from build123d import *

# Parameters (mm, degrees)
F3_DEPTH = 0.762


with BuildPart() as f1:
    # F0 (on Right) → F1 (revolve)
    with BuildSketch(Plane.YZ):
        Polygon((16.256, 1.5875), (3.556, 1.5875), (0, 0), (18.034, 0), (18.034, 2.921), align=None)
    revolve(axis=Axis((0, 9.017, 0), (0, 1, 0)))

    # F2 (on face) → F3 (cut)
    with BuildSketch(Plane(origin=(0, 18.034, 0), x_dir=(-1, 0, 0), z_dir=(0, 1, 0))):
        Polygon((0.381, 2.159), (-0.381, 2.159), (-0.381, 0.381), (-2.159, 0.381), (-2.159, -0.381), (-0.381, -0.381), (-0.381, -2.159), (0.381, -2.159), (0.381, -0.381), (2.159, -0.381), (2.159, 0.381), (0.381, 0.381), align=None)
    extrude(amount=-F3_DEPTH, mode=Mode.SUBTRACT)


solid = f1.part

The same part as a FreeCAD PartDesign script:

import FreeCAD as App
import Part
import Sketcher
Q = App.Units.Quantity


def add_polygon(sketch, points):
    """Adds a closed chain of lines whose ends are joined by coincident constraints."""
    first, n = sketch.GeometryCount, len(points)
    for a, b in zip(points, points[1:] + points[:1]):
        sketch.addGeometry(Part.LineSegment(App.Vector(*a, 0), App.Vector(*b, 0)), False)
    for i in range(n):
        sketch.addConstraint(Sketcher.Constraint("Coincident", first + i, 2, first + (i + 1) % n, 1))

doc = App.newDocument("Part")
body = doc.addObject("PartDesign::Body", "Body")

sketch1 = body.newObject("Sketcher::SketchObject", "Sketch")
sketch1.AttachmentSupport = (doc.getObject("YZ_Plane"), [""])
sketch1.MapMode = "FlatFace"
add_polygon(sketch1, [(16.3, 1.6), (3.6, 1.6), (0, 0), (18, 0), (18, 2.9)])
sketch1.addConstraint([
    Sketcher.Constraint("Horizontal", 0),
    Sketcher.Constraint("Horizontal", 2),
    Sketcher.Constraint("Vertical", 3),
    Sketcher.Constraint("Coincident", 1, 2, -1, 1),
    Sketcher.Constraint("DistanceX", 0, 2, 0, 1, Q("0.5 in")),
    Sketcher.Constraint("DistanceX", 2, 1, 2, 2, Q("0.71 in")),
    Sketcher.Constraint("DistanceY", 3, 1, 3, 2, Q("0.115 in")),
    Sketcher.Constraint("DistanceX", -1, 1, 0, 2, Q("0.14 in")),
    Sketcher.Constraint("DistanceY", -1, 1, 0, 2, Q("0.0625 in")),
])
revolution = body.newObject("PartDesign::Revolution", "Revolution")
revolution.Profile = sketch1
revolution.ReferenceAxis = (sketch1, ["H_Axis"])
revolution.Angle = 360

sketch2 = body.newObject("Sketcher::SketchObject", "Sketch001")
sketch2.AttachmentSupport = (doc.getObject("XZ_Plane"), [""])
sketch2.MapMode = "FlatFace"
sketch2.AttachmentOffset = App.Placement(App.Vector(0, 0, -0.71 * 25.4), App.Rotation())
add_polygon(sketch2, [(-0.4, 2.2), (0.4, 2.2), (0.4, 0.4), (2.2, 0.4), (2.2, -0.4), (0.4, -0.4), (0.4, -2.2), (-0.4, -2.2), (-0.4, -0.4), (-2.2, -0.4), (-2.2, 0.4), (-0.4, 0.4)])
sketch2.addConstraint([
    Sketcher.Constraint("Horizontal", 0),
    Sketcher.Constraint("Vertical", 1),
    Sketcher.Constraint("Horizontal", 2),
    Sketcher.Constraint("Vertical", 3),
    Sketcher.Constraint("Horizontal", 4),
    Sketcher.Constraint("Vertical", 5),
    Sketcher.Constraint("Horizontal", 6),
    Sketcher.Constraint("Vertical", 7),
    Sketcher.Constraint("Horizontal", 8),
    Sketcher.Constraint("Vertical", 9),
    Sketcher.Constraint("Horizontal", 10),
    Sketcher.Constraint("Vertical", 11),
    Sketcher.Constraint("Symmetric", 0, 2, 6, 2, -1, 1),
    Sketcher.Constraint("Symmetric", 2, 2, 8, 2, -1, 1),
    Sketcher.Constraint("Symmetric", 4, 2, 10, 2, -1, 1),
    Sketcher.Constraint("Symmetric", 4, 2, 7, 2, -2),
    Sketcher.Constraint("Equal", 10, 1),
    Sketcher.Constraint("Equal", 6, 3),
    Sketcher.Constraint("DistanceX", 0, 1, 0, 2, Q("0.03 in")),
    Sketcher.Constraint("DistanceX", 2, 1, 2, 2, Q("0.07 in")),
])
pocket1 = body.newObject("PartDesign::Pocket", "Pocket")
pocket1.Profile = sketch2
pocket1.Length = Q("0.03 in")
pocket1.Reversed = True

doc.recompute()
